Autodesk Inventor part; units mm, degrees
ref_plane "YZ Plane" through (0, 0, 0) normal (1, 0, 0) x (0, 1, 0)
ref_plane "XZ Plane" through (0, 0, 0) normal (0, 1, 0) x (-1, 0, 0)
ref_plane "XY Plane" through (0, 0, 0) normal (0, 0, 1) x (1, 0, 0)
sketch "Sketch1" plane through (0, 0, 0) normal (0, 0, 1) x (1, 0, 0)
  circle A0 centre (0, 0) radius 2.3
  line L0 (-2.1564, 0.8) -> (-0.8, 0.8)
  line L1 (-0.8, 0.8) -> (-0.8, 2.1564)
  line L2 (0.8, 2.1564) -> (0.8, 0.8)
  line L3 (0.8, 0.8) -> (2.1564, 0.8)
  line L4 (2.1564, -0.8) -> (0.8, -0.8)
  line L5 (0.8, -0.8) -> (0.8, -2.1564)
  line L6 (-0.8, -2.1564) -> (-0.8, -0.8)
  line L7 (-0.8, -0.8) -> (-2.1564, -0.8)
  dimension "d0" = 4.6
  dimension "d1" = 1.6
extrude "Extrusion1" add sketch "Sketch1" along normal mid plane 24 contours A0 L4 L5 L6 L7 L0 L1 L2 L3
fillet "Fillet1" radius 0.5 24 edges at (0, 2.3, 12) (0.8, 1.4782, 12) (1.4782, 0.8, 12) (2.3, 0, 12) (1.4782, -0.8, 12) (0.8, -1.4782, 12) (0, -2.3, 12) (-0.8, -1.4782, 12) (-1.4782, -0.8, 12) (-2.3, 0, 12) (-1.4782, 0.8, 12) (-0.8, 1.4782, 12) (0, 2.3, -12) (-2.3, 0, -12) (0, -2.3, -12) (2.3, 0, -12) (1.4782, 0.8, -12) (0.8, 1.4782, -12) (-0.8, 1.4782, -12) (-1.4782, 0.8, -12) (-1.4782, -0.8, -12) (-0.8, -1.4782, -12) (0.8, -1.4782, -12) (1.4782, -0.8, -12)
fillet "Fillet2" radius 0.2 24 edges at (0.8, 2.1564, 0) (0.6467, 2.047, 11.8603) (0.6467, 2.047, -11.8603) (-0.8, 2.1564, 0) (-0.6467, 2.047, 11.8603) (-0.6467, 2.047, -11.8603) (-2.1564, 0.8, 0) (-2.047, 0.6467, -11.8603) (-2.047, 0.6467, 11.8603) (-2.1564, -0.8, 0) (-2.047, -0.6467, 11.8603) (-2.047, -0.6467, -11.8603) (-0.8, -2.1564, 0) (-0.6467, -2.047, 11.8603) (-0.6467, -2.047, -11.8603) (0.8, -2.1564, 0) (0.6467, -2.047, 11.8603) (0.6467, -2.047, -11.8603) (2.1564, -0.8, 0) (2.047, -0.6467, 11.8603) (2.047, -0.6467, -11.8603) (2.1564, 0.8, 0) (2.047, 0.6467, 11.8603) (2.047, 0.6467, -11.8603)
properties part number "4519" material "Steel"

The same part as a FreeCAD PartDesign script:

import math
import FreeCAD as App
import Part
import Sketcher


def edges_at(feature, points):
    """Names of the edges that pass closest to the given points."""
    edges = feature.Shape.Edges
    near = lambda p: min(range(len(edges)), key=lambda i: edges[i].distToShape(Part.Vertex(*p))[0])
    return sorted({f"Edge{near(p) + 1}" for p in points})

doc = App.newDocument("Part")
body = doc.addObject("PartDesign::Body", "Body")

# Sketch on XY plane
sketch1 = body.newObject("Sketcher::SketchObject", "Sketch")
sketch1.AttachmentSupport = (doc.getObject("XY_Plane"), [""])
sketch1.MapMode = "FlatFace"
sketch1.addGeometry([
    Part.ArcOfCircle(Part.Circle(App.Vector(0, 0, 0), App.Vector(0, 0, 1), 2.3), math.radians(-20), math.radians(20)),  # 0
    Part.LineSegment(App.Vector(2.2, 0.8, 0), App.Vector(0.8, 0.8, 0)),  # 1
    Part.LineSegment(App.Vector(0.8, 0.8, 0), App.Vector(0.8, 2.2, 0)),  # 2
    Part.ArcOfCircle(Part.Circle(App.Vector(0, 0, 0), App.Vector(0, 0, 1), 2.3), math.radians(70), math.radians(110)),  # 3
    Part.LineSegment(App.Vector(-0.8, 2.2, 0), App.Vector(-0.8, 0.8, 0)),  # 4
    Part.LineSegment(App.Vector(-0.8, 0.8, 0), App.Vector(-2.2, 0.8, 0)),  # 5
    Part.ArcOfCircle(Part.Circle(App.Vector(0, 0, 0), App.Vector(0, 0, 1), 2.3), math.radians(160), math.radians(200)),  # 6
    Part.LineSegment(App.Vector(-2.2, -0.8, 0), App.Vector(-0.8, -0.8, 0)),  # 7
    Part.LineSegment(App.Vector(-0.8, -0.8, 0), App.Vector(-0.8, -2.2, 0)),  # 8
    Part.ArcOfCircle(Part.Circle(App.Vector(0, 0, 0), App.Vector(0, 0, 1), 2.3), math.radians(-110), math.radians(-70)),  # 9
    Part.LineSegment(App.Vector(0.8, -2.2, 0), App.Vector(0.8, -0.8, 0)),  # 10
    Part.LineSegment(App.Vector(0.8, -0.8, 0), App.Vector(2.2, -0.8, 0)),  # 11
], False)
sketch1.addConstraint([
    Sketcher.Constraint("Coincident", 0, 2, 1, 1),
    Sketcher.Constraint("Coincident", 1, 2, 2, 1),
    Sketcher.Constraint("Coincident", 2, 2, 3, 1),
    Sketcher.Constraint("Coincident", 3, 2, 4, 1),
    Sketcher.Constraint("Coincident", 4, 2, 5, 1),
    Sketcher.Constraint("Coincident", 5, 2, 6, 1),
    Sketcher.Constraint("Coincident", 6, 2, 7, 1),
    Sketcher.Constraint("Coincident", 7, 2, 8, 1),
    Sketcher.Constraint("Coincident", 8, 2, 9, 1),
    Sketcher.Constraint("Coincident", 9, 2, 10, 1),
    Sketcher.Constraint("Coincident", 10, 2, 11, 1),
    Sketcher.Constraint("Coincident", 11, 2, 0, 1),
    Sketcher.Constraint("Horizontal", 1),
    Sketcher.Constraint("Vertical", 2),
    Sketcher.Constraint("Vertical", 4),
    Sketcher.Constraint("Horizontal", 5),
    Sketcher.Constraint("Horizontal", 7),
    Sketcher.Constraint("Vertical", 8),
    Sketcher.Constraint("Vertical", 10),
    Sketcher.Constraint("Horizontal", 11),
    Sketcher.Constraint("Coincident", 0, 3, -1, 1),
    Sketcher.Constraint("Coincident", 3, 3, -1, 1),
    Sketcher.Constraint("Coincident", 6, 3, -1, 1),
    Sketcher.Constraint("Coincident", 9, 3, -1, 1),
    Sketcher.Constraint("Equal", 0, 3),
    Sketcher.Constraint("Equal", 3, 6),
    Sketcher.Constraint("Equal", 6, 9),
    Sketcher.Constraint("Symmetric", 1, 2, 7, 2, -1, 1),
    Sketcher.Constraint("Symmetric", 4, 2, 10, 2, -1, 1),
    Sketcher.Constraint("Symmetric", 1, 2, 4, 2, -2),
    Sketcher.Constraint("Equal", 11, 2),
    Sketcher.Constraint("Radius", 0, 2.3),
    Sketcher.Constraint("DistanceX", 3, 2, 2, 2, 1.6),
])
pad1 = body.newObject("PartDesign::Pad", "Pad")
pad1.Profile = sketch1
pad1.Length = 24
pad1.Midplane = True
doc.recompute()

fillet = body.newObject("PartDesign::Fillet", "Fillet")
fillet.Base = (pad1, edges_at(pad1, [
    (0, 2.3, 12),
    (0.8, 1.478, 12),
    (1.478, 0.8, 12),
    (2.3, 0, 12),
    (1.478, -0.8, 12),
    (0.8, -1.478, 12),
    (0, -2.3, 12),
    (-0.8, -1.478, 12),
    (-1.478, -0.8, 12),
    (-2.3, 0, 12),
    (-1.478, 0.8, 12),
    (-0.8, 1.478, 12),
    (0, 2.3, -12),
    (-2.3, 0, -12),
    (0, -2.3, -12),
    (2.3, 0, -12),
    (1.478, 0.8, -12),
    (0.8, 1.478, -12),
    (-0.8, 1.478, -12),
    (-1.478, 0.8, -12),
    (-1.478, -0.8, -12),
    (-0.8, -1.478, -12),
    (0.8, -1.478, -12),
    (1.478, -0.8, -12),
]))
fillet.Radius = 0.5
doc.recompute()

fillet2 = body.newObject("PartDesign::Fillet", "Fillet001")
fillet2.Base = (fillet, edges_at(fillet, [
    (0.8, 2.156, 0),
    (0.647, 2.047, 11.86),
    (0.647, 2.047, -11.86),
    (-0.8, 2.156, 0),
    (-0.647, 2.047, 11.86),
    (-0.647, 2.047, -11.86),
    (-2.156, 0.8, 0),
    (-2.047, 0.647, -11.86),
    (-2.047, 0.647, 11.86),
    (-2.156, -0.8, 0),
    (-2.047, -0.647, 11.86),
    (-2.047, -0.647, -11.86),
    (-0.8, -2.156, 0),
    (-0.647, -2.047, 11.86),
    (-0.647, -2.047, -11.86),
    (0.8, -2.156, 0),
    (0.647, -2.047, 11.86),
    (0.647, -2.047, -11.86),
    (2.156, -0.8, 0),
    (2.047, -0.647, 11.86),
    (2.047, -0.647, -11.86),
    (2.156, 0.8, 0),
    (2.047, 0.647, 11.86),
    (2.047, 0.647, -11.86),
]))
fillet2.Radius = 0.2

doc.recompute()
